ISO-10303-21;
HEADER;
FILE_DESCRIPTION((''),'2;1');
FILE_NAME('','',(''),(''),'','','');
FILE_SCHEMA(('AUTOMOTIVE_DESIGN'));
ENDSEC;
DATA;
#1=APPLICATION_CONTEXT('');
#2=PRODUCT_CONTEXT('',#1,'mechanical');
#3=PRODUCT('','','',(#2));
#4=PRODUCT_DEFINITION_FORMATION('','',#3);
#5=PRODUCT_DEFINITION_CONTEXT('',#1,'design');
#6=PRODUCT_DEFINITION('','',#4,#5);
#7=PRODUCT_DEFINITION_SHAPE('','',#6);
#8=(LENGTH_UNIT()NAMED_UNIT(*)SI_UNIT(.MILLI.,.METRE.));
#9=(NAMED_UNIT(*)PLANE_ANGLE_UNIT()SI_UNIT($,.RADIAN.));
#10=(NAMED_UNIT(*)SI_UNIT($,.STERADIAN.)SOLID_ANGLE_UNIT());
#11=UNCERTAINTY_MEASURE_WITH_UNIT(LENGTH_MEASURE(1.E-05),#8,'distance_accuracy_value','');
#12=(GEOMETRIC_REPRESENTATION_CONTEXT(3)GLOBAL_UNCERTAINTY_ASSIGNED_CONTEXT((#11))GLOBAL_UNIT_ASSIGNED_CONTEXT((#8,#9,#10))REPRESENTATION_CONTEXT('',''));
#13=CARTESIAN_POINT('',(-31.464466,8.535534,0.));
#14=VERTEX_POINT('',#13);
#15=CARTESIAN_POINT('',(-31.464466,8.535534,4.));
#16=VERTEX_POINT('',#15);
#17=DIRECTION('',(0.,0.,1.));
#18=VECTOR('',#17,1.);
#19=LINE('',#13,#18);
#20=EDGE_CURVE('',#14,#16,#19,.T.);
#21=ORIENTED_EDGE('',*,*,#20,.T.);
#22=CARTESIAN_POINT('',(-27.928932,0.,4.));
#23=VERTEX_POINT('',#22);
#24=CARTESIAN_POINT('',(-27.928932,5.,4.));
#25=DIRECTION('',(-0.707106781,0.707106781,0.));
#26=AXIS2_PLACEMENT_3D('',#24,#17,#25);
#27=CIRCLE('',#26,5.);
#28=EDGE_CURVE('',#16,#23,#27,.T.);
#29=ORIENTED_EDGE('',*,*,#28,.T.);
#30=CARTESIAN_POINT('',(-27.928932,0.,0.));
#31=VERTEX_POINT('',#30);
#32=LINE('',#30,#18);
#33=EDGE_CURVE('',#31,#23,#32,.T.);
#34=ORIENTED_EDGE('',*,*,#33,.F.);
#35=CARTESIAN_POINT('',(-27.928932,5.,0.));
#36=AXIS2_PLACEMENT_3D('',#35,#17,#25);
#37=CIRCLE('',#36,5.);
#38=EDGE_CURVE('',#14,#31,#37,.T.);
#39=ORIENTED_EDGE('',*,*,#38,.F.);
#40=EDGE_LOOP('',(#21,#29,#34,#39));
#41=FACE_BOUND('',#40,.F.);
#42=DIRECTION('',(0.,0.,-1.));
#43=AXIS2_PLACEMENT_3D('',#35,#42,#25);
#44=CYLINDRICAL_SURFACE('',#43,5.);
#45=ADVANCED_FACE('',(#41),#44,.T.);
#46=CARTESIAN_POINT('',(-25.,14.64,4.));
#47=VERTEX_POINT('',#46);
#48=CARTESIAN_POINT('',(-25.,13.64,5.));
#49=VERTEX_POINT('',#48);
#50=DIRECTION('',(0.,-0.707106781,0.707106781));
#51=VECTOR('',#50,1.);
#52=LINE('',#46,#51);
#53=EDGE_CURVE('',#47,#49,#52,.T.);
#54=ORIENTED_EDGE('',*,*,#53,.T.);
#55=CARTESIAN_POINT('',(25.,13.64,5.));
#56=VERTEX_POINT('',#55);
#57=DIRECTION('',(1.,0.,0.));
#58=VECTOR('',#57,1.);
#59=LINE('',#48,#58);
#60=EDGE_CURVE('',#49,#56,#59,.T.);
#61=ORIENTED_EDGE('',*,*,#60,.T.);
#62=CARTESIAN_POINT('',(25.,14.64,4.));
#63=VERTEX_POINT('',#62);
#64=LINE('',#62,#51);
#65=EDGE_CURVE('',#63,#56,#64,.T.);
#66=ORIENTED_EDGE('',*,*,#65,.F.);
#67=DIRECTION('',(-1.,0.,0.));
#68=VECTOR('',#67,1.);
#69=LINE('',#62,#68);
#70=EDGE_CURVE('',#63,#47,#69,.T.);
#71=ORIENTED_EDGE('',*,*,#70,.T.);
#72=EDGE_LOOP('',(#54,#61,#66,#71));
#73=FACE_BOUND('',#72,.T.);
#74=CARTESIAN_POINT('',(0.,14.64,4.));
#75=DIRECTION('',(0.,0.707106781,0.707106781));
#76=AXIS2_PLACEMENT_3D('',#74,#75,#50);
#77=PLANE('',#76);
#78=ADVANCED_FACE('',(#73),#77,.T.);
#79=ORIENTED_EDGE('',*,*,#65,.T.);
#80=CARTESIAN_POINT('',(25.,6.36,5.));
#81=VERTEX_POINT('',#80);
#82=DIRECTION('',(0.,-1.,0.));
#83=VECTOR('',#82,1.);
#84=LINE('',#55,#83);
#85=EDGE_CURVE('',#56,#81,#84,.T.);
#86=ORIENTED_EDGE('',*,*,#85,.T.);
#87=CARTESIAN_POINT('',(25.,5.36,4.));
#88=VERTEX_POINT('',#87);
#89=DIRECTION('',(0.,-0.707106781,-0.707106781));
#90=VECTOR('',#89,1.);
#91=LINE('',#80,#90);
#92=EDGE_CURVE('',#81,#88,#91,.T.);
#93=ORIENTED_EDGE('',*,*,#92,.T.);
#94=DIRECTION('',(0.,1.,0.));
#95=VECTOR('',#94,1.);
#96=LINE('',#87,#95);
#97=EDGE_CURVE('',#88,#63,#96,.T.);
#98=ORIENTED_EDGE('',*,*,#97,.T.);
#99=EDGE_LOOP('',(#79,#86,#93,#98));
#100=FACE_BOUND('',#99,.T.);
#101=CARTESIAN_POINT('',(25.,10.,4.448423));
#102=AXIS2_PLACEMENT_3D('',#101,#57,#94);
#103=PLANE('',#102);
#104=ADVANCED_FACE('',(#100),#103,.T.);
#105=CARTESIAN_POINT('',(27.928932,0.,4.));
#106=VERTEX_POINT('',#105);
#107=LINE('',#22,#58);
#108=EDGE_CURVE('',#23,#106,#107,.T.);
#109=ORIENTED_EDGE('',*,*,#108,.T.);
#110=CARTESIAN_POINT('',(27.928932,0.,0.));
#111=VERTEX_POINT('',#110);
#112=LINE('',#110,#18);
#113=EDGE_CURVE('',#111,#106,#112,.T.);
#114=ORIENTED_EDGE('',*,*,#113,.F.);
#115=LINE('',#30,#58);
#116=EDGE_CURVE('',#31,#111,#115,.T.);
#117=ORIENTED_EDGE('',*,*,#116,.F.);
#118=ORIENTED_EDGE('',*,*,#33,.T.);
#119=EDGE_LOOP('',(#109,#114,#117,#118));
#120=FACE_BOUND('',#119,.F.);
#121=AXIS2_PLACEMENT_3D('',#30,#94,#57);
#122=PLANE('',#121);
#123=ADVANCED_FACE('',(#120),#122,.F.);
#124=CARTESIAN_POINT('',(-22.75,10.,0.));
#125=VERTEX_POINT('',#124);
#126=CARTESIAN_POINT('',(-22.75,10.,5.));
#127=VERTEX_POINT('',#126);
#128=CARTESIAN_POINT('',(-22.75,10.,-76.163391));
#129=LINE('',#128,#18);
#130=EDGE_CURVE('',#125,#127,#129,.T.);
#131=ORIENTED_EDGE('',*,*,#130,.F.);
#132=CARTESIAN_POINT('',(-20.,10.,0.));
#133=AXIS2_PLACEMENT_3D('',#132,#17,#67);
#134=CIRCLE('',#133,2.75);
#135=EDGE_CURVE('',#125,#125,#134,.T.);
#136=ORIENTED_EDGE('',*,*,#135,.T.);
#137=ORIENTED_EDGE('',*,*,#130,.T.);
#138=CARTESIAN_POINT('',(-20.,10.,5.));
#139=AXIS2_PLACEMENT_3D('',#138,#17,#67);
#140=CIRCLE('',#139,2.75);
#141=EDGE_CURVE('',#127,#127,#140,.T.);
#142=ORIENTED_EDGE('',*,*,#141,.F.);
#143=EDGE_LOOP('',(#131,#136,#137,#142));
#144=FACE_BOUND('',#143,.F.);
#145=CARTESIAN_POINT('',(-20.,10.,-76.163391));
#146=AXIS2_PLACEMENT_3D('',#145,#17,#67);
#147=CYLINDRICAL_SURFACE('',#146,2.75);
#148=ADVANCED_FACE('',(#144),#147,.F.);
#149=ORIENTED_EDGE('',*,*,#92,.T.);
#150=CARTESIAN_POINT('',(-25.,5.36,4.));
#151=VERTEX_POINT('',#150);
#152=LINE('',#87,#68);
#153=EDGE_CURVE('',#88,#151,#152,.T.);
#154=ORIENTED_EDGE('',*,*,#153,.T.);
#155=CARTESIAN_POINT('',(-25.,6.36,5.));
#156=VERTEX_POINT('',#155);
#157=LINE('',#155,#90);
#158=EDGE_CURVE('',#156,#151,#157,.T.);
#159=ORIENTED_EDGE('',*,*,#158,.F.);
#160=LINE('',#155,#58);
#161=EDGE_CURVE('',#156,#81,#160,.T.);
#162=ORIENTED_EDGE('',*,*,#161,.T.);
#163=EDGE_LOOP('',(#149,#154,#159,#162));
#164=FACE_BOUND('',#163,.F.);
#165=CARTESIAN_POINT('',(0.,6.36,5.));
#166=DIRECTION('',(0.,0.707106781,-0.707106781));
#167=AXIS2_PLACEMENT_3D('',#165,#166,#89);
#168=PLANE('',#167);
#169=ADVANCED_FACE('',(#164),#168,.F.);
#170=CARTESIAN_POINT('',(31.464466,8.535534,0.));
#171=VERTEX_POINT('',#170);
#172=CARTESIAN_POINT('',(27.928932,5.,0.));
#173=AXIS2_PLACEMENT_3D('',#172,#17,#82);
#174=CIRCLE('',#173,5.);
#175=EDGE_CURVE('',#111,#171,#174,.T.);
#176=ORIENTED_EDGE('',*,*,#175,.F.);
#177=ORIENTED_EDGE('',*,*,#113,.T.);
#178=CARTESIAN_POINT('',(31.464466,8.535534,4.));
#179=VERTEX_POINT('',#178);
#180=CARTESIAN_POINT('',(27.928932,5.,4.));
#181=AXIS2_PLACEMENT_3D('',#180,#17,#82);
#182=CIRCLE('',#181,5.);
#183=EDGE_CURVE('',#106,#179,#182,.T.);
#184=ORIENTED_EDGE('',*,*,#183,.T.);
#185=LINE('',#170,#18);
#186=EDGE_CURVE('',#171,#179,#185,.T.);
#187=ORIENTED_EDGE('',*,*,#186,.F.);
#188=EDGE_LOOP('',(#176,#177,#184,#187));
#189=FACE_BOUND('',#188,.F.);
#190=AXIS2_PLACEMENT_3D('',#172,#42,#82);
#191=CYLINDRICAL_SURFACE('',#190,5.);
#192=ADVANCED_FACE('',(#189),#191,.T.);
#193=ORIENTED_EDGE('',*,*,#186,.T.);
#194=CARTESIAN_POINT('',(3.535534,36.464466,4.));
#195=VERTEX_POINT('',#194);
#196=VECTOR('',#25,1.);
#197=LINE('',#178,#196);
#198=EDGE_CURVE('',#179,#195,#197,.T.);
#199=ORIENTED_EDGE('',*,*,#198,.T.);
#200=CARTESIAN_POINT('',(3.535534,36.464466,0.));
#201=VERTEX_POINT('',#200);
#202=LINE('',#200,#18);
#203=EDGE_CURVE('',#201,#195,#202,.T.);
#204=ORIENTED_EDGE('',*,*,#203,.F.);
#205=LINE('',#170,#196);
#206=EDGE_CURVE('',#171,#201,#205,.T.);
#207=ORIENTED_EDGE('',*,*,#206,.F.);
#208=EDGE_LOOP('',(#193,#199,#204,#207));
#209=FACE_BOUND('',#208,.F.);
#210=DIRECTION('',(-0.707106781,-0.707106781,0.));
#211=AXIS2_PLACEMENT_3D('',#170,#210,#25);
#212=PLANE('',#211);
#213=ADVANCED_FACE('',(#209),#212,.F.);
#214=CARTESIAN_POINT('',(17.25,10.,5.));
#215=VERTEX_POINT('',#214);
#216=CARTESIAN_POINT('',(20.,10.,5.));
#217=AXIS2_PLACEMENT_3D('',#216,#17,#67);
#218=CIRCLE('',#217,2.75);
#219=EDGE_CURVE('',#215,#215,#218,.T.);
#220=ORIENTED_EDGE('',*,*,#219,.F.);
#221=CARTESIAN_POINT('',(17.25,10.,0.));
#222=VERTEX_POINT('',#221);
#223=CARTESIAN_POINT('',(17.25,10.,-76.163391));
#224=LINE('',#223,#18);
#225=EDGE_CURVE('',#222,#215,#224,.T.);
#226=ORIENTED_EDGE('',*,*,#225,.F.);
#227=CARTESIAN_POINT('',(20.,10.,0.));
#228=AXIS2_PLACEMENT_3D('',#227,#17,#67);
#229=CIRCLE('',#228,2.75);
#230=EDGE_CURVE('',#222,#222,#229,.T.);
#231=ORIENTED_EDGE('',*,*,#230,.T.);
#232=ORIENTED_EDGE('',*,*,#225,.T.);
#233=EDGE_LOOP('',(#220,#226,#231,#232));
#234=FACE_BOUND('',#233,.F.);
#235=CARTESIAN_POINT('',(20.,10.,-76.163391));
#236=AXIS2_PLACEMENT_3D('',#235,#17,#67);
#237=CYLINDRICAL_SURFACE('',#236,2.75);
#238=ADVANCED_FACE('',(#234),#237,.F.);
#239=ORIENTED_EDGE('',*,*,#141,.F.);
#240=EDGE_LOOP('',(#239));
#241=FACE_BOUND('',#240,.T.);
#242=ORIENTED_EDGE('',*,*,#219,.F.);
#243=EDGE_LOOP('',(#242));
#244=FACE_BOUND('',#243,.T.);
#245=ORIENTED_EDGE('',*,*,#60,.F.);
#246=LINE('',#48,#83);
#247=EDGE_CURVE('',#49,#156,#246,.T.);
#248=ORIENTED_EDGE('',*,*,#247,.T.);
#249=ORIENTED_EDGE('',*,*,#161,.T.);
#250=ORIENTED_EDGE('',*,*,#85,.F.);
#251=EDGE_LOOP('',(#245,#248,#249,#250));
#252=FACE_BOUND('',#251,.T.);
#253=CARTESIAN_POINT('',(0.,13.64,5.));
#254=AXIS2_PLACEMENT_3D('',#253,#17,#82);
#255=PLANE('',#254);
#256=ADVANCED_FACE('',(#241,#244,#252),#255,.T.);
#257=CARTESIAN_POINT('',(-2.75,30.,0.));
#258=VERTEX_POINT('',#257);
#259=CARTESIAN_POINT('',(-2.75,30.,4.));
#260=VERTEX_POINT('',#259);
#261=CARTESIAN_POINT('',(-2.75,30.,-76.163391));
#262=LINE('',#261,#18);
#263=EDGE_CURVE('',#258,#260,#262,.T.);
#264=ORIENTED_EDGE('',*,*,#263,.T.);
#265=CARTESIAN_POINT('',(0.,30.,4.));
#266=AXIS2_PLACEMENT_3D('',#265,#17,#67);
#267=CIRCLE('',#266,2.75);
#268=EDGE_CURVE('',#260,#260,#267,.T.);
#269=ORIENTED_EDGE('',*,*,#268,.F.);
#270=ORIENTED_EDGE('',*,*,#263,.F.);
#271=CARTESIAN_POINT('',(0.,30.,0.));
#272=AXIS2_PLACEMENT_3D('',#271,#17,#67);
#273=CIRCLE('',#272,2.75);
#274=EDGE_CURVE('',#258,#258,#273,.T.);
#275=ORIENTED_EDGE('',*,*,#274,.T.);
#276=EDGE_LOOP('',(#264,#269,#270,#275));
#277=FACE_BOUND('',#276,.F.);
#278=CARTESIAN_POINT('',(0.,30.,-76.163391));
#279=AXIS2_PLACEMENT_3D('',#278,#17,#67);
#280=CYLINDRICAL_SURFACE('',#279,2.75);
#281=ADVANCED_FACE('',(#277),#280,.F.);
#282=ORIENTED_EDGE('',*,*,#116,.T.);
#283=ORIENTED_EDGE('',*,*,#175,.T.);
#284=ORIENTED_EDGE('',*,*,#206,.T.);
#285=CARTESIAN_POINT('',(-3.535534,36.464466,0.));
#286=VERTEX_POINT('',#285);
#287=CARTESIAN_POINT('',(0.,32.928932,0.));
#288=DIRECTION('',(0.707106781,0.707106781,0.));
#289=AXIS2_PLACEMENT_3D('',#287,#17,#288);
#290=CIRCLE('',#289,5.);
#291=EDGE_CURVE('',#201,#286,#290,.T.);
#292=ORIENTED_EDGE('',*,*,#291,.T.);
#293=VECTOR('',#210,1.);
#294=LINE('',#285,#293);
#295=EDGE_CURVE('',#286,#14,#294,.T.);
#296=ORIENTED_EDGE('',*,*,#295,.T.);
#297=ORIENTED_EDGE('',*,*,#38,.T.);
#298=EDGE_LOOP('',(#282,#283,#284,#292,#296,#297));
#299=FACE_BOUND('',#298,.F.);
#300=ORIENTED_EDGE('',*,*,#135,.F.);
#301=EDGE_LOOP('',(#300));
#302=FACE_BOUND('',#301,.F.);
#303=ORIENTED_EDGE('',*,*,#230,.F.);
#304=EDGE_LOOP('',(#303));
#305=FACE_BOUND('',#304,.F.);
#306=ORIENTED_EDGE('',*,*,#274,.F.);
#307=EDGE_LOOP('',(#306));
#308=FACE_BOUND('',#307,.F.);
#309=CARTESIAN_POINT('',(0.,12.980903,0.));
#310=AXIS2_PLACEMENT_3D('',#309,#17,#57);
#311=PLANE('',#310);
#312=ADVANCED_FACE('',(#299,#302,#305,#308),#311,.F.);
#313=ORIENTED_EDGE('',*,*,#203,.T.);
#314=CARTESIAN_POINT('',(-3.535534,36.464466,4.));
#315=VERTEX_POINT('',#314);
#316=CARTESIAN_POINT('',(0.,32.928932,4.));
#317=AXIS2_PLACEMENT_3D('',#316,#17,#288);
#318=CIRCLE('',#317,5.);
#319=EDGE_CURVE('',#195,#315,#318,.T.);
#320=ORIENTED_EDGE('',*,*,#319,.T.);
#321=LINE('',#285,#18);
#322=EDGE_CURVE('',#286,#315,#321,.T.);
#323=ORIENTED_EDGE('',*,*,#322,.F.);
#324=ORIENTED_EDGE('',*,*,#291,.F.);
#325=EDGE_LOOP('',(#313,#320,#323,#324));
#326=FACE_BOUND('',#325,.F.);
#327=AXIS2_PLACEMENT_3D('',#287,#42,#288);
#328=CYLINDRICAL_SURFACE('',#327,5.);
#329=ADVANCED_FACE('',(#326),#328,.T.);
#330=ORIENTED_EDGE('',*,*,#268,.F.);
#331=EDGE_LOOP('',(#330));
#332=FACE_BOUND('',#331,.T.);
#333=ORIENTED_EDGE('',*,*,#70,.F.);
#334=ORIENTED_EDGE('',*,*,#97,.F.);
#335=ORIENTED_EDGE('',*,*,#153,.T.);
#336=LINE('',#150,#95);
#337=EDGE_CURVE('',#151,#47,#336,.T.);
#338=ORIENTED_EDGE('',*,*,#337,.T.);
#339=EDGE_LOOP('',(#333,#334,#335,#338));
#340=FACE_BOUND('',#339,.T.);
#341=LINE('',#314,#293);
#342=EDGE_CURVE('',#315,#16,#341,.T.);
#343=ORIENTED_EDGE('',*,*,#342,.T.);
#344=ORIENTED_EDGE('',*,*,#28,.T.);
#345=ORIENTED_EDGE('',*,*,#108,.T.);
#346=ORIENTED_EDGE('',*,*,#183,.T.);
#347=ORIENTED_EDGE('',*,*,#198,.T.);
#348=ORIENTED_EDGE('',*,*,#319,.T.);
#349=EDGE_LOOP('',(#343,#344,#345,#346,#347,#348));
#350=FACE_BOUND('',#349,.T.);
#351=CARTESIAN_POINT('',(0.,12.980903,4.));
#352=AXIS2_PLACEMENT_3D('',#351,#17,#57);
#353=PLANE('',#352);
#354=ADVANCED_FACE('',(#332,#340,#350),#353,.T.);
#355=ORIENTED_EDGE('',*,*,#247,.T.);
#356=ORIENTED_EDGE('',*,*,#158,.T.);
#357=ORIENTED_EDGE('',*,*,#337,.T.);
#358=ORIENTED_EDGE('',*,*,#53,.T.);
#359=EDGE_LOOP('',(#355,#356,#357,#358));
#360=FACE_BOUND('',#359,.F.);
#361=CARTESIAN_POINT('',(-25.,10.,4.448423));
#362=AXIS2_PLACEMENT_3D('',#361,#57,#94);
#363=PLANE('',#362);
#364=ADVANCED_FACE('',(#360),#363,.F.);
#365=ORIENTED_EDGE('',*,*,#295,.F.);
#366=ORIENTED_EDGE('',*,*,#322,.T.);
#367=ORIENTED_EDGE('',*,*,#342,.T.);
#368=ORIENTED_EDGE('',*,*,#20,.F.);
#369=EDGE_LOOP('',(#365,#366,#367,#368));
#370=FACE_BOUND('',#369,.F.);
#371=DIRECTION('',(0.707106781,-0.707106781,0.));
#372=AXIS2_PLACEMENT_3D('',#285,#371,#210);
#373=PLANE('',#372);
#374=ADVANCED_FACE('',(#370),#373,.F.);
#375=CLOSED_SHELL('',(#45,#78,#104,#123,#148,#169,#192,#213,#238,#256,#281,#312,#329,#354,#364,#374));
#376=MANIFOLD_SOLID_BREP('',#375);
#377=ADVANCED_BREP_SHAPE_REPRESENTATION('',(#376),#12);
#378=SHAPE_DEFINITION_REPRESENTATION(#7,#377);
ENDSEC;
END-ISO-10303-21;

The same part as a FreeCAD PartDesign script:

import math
import FreeCAD as App
import Part
import Sketcher
from FreeCAD import Vector


def add_polygon(sketch, points):
    """Adds a closed chain of lines whose ends are joined by coincident constraints."""
    first, n = sketch.GeometryCount, len(points)
    for a, b in zip(points, points[1:] + points[:1]):
        sketch.addGeometry(Part.LineSegment(App.Vector(*a, 0), App.Vector(*b, 0)), False)
    for i in range(n):
        sketch.addConstraint(Sketcher.Constraint("Coincident", first + i, 2, first + (i + 1) % n, 1))

doc = App.newDocument("Part")
params = doc.addObject("Spreadsheet::Sheet", "Params")
for row, (alias, value) in enumerate([
    ("sketch1_radius", "5 mm"),
    ("pad1_length", "4 mm"),
    ("sketch2_width", "9.28 mm"),
    ("pad2_length", "25 mm"),
    ("pad2_length2", "25 mm"),
    ("sketch3_diameter", "5.5 mm"),
    ("hole_diameter", "5.5 mm"),
], start=1):
    params.set(f"A{row}", alias)
    params.set(f"B{row}", "=" + value)
    params.setAlias(f"B{row}", alias)

body = doc.addObject("PartDesign::Body", "Body")

sketch1 = body.newObject("Sketcher::SketchObject", "Sketch")
sketch1.AttachmentSupport = (doc.getObject("XY_Plane"), [""])
sketch1.MapMode = "FlatFace"
sketch1.addGeometry([
    Part.ArcOfCircle(Part.Circle(Vector(0, 32.928932, 0), Vector(0, 0, 1), 5), math.radians(45), math.radians(135)),
    Part.LineSegment(Vector(-3.535534, 36.464466, 0), Vector(-31.464466, 8.535534, 0)),
    Part.ArcOfCircle(Part.Circle(Vector(-27.928932, 5, 0), Vector(0, 0, 1), 5), math.radians(135), math.radians(270)),
    Part.LineSegment(Vector(-27.928932, 0, 0), Vector(27.928932, 0, 0)),
    Part.ArcOfCircle(Part.Circle(Vector(27.928932, 5, 0), Vector(0, 0, 1), 5), math.radians(-90), math.radians(45)),
    Part.LineSegment(Vector(31.464466, 8.535534, 0), Vector(3.535534, 36.464466, 0)),
], False)
sketch1.addConstraint([
    Sketcher.Constraint("Tangent", 0, 2, 1, 1),
    Sketcher.Constraint("Tangent", 1, 2, 2, 1),
    Sketcher.Constraint("Tangent", 2, 2, 3, 1),
    Sketcher.Constraint("Tangent", 3, 2, 4, 1),
    Sketcher.Constraint("Tangent", 4, 2, 5, 1),
    Sketcher.Constraint("Tangent", 5, 2, 0, 1),
    Sketcher.Constraint("Horizontal", 3),
    Sketcher.Constraint("Equal", 0, 2),
    Sketcher.Constraint("Equal", 2, 4),
    Sketcher.Constraint("Symmetric", 2, 2, 3, 2, -1, 1),
    Sketcher.Constraint("PointOnObject", 0, 3, -2),
    Sketcher.Constraint("Perpendicular", 1, 5),
    Sketcher.Constraint("Radius", 0, 5.0),
    Sketcher.Constraint("DistanceX", 0, 2, 4, 2, 35.0),
])
sketch1.setExpression("Constraints[12]", "Params.sketch1_radius")
pad1 = body.newObject("PartDesign::Pad", "Pad")
pad1.Profile = sketch1
pad1.setExpression("Length", "Params.pad1_length")

sketch2 = body.newObject("Sketcher::SketchObject", "Sketch001")
sketch2.AttachmentSupport = (doc.getObject("YZ_Plane"), [""])
sketch2.MapMode = "FlatFace"
add_polygon(sketch2, [(5.36, 4), (14.64, 4), (13.64, 5), (6.36, 5)])
sketch2.addConstraint([
    Sketcher.Constraint("Horizontal", 0),
    Sketcher.Constraint("Horizontal", 2),
    Sketcher.Constraint("Perpendicular", 1, 3),
    Sketcher.Constraint("Equal", 1, 3),
    Sketcher.Constraint("DistanceY", -1, 1, 0, 2, 4.0),
    Sketcher.Constraint("DistanceY", -1, 1, 1, 2, 5.0),
    Sketcher.Constraint("DistanceX", 0, 1, 0, 2, 9.28),
    Sketcher.Constraint("DistanceX", -1, 1, 0, 2, 14.64),
])
sketch2.setExpression("Constraints[10]", "Params.sketch2_width")
pad2 = body.newObject("PartDesign::Pad", "Pad001")
pad2.Profile = sketch2
pad2.Type = "TwoLengths"
pad2.setExpression("Length", "Params.pad2_length")
pad2.setExpression("Length2", "Params.pad2_length2")

sketch3 = body.newObject("Sketcher::SketchObject", "Sketch002")
sketch3.AttachmentSupport = (doc.getObject("XY_Plane"), [""])
sketch3.MapMode = "FlatFace"
sketch3.addGeometry([
    Part.Circle(Vector(-20, 10, 0), Vector(0, 0, 1), 2.75),
    Part.Circle(Vector(0, 30, 0), Vector(0, 0, 1), 2.75),
    Part.Circle(Vector(20, 10, 0), Vector(0, 0, 1), 2.75),
], False)
sketch3.addConstraint([
    Sketcher.Constraint("Equal", 0, 1),
    Sketcher.Constraint("Equal", 1, 2),
    Sketcher.Constraint("Symmetric", 0, 3, 2, 3, -2),
    Sketcher.Constraint("PointOnObject", 1, 3, -2),
    Sketcher.Constraint("Diameter", 0, 5.5),
    Sketcher.Constraint("DistanceX", 0, 3, -1, 1, 20.0),
    Sketcher.Constraint("DistanceY", -1, 1, 0, 3, 10.0),
    Sketcher.Constraint("DistanceY", -1, 1, 1, 3, 30.0),
])
sketch3.setExpression("Constraints[4]", "Params.sketch3_diameter")
doc.recompute()
hole = body.newObject("PartDesign::Hole", "Hole")
hole.Profile = sketch3
hole.ThreadType = "None"
hole.setExpression("Diameter", "Params.hole_diameter")
hole.DepthType = "ThroughAll"
hole.Reversed = True

doc.recompute()
